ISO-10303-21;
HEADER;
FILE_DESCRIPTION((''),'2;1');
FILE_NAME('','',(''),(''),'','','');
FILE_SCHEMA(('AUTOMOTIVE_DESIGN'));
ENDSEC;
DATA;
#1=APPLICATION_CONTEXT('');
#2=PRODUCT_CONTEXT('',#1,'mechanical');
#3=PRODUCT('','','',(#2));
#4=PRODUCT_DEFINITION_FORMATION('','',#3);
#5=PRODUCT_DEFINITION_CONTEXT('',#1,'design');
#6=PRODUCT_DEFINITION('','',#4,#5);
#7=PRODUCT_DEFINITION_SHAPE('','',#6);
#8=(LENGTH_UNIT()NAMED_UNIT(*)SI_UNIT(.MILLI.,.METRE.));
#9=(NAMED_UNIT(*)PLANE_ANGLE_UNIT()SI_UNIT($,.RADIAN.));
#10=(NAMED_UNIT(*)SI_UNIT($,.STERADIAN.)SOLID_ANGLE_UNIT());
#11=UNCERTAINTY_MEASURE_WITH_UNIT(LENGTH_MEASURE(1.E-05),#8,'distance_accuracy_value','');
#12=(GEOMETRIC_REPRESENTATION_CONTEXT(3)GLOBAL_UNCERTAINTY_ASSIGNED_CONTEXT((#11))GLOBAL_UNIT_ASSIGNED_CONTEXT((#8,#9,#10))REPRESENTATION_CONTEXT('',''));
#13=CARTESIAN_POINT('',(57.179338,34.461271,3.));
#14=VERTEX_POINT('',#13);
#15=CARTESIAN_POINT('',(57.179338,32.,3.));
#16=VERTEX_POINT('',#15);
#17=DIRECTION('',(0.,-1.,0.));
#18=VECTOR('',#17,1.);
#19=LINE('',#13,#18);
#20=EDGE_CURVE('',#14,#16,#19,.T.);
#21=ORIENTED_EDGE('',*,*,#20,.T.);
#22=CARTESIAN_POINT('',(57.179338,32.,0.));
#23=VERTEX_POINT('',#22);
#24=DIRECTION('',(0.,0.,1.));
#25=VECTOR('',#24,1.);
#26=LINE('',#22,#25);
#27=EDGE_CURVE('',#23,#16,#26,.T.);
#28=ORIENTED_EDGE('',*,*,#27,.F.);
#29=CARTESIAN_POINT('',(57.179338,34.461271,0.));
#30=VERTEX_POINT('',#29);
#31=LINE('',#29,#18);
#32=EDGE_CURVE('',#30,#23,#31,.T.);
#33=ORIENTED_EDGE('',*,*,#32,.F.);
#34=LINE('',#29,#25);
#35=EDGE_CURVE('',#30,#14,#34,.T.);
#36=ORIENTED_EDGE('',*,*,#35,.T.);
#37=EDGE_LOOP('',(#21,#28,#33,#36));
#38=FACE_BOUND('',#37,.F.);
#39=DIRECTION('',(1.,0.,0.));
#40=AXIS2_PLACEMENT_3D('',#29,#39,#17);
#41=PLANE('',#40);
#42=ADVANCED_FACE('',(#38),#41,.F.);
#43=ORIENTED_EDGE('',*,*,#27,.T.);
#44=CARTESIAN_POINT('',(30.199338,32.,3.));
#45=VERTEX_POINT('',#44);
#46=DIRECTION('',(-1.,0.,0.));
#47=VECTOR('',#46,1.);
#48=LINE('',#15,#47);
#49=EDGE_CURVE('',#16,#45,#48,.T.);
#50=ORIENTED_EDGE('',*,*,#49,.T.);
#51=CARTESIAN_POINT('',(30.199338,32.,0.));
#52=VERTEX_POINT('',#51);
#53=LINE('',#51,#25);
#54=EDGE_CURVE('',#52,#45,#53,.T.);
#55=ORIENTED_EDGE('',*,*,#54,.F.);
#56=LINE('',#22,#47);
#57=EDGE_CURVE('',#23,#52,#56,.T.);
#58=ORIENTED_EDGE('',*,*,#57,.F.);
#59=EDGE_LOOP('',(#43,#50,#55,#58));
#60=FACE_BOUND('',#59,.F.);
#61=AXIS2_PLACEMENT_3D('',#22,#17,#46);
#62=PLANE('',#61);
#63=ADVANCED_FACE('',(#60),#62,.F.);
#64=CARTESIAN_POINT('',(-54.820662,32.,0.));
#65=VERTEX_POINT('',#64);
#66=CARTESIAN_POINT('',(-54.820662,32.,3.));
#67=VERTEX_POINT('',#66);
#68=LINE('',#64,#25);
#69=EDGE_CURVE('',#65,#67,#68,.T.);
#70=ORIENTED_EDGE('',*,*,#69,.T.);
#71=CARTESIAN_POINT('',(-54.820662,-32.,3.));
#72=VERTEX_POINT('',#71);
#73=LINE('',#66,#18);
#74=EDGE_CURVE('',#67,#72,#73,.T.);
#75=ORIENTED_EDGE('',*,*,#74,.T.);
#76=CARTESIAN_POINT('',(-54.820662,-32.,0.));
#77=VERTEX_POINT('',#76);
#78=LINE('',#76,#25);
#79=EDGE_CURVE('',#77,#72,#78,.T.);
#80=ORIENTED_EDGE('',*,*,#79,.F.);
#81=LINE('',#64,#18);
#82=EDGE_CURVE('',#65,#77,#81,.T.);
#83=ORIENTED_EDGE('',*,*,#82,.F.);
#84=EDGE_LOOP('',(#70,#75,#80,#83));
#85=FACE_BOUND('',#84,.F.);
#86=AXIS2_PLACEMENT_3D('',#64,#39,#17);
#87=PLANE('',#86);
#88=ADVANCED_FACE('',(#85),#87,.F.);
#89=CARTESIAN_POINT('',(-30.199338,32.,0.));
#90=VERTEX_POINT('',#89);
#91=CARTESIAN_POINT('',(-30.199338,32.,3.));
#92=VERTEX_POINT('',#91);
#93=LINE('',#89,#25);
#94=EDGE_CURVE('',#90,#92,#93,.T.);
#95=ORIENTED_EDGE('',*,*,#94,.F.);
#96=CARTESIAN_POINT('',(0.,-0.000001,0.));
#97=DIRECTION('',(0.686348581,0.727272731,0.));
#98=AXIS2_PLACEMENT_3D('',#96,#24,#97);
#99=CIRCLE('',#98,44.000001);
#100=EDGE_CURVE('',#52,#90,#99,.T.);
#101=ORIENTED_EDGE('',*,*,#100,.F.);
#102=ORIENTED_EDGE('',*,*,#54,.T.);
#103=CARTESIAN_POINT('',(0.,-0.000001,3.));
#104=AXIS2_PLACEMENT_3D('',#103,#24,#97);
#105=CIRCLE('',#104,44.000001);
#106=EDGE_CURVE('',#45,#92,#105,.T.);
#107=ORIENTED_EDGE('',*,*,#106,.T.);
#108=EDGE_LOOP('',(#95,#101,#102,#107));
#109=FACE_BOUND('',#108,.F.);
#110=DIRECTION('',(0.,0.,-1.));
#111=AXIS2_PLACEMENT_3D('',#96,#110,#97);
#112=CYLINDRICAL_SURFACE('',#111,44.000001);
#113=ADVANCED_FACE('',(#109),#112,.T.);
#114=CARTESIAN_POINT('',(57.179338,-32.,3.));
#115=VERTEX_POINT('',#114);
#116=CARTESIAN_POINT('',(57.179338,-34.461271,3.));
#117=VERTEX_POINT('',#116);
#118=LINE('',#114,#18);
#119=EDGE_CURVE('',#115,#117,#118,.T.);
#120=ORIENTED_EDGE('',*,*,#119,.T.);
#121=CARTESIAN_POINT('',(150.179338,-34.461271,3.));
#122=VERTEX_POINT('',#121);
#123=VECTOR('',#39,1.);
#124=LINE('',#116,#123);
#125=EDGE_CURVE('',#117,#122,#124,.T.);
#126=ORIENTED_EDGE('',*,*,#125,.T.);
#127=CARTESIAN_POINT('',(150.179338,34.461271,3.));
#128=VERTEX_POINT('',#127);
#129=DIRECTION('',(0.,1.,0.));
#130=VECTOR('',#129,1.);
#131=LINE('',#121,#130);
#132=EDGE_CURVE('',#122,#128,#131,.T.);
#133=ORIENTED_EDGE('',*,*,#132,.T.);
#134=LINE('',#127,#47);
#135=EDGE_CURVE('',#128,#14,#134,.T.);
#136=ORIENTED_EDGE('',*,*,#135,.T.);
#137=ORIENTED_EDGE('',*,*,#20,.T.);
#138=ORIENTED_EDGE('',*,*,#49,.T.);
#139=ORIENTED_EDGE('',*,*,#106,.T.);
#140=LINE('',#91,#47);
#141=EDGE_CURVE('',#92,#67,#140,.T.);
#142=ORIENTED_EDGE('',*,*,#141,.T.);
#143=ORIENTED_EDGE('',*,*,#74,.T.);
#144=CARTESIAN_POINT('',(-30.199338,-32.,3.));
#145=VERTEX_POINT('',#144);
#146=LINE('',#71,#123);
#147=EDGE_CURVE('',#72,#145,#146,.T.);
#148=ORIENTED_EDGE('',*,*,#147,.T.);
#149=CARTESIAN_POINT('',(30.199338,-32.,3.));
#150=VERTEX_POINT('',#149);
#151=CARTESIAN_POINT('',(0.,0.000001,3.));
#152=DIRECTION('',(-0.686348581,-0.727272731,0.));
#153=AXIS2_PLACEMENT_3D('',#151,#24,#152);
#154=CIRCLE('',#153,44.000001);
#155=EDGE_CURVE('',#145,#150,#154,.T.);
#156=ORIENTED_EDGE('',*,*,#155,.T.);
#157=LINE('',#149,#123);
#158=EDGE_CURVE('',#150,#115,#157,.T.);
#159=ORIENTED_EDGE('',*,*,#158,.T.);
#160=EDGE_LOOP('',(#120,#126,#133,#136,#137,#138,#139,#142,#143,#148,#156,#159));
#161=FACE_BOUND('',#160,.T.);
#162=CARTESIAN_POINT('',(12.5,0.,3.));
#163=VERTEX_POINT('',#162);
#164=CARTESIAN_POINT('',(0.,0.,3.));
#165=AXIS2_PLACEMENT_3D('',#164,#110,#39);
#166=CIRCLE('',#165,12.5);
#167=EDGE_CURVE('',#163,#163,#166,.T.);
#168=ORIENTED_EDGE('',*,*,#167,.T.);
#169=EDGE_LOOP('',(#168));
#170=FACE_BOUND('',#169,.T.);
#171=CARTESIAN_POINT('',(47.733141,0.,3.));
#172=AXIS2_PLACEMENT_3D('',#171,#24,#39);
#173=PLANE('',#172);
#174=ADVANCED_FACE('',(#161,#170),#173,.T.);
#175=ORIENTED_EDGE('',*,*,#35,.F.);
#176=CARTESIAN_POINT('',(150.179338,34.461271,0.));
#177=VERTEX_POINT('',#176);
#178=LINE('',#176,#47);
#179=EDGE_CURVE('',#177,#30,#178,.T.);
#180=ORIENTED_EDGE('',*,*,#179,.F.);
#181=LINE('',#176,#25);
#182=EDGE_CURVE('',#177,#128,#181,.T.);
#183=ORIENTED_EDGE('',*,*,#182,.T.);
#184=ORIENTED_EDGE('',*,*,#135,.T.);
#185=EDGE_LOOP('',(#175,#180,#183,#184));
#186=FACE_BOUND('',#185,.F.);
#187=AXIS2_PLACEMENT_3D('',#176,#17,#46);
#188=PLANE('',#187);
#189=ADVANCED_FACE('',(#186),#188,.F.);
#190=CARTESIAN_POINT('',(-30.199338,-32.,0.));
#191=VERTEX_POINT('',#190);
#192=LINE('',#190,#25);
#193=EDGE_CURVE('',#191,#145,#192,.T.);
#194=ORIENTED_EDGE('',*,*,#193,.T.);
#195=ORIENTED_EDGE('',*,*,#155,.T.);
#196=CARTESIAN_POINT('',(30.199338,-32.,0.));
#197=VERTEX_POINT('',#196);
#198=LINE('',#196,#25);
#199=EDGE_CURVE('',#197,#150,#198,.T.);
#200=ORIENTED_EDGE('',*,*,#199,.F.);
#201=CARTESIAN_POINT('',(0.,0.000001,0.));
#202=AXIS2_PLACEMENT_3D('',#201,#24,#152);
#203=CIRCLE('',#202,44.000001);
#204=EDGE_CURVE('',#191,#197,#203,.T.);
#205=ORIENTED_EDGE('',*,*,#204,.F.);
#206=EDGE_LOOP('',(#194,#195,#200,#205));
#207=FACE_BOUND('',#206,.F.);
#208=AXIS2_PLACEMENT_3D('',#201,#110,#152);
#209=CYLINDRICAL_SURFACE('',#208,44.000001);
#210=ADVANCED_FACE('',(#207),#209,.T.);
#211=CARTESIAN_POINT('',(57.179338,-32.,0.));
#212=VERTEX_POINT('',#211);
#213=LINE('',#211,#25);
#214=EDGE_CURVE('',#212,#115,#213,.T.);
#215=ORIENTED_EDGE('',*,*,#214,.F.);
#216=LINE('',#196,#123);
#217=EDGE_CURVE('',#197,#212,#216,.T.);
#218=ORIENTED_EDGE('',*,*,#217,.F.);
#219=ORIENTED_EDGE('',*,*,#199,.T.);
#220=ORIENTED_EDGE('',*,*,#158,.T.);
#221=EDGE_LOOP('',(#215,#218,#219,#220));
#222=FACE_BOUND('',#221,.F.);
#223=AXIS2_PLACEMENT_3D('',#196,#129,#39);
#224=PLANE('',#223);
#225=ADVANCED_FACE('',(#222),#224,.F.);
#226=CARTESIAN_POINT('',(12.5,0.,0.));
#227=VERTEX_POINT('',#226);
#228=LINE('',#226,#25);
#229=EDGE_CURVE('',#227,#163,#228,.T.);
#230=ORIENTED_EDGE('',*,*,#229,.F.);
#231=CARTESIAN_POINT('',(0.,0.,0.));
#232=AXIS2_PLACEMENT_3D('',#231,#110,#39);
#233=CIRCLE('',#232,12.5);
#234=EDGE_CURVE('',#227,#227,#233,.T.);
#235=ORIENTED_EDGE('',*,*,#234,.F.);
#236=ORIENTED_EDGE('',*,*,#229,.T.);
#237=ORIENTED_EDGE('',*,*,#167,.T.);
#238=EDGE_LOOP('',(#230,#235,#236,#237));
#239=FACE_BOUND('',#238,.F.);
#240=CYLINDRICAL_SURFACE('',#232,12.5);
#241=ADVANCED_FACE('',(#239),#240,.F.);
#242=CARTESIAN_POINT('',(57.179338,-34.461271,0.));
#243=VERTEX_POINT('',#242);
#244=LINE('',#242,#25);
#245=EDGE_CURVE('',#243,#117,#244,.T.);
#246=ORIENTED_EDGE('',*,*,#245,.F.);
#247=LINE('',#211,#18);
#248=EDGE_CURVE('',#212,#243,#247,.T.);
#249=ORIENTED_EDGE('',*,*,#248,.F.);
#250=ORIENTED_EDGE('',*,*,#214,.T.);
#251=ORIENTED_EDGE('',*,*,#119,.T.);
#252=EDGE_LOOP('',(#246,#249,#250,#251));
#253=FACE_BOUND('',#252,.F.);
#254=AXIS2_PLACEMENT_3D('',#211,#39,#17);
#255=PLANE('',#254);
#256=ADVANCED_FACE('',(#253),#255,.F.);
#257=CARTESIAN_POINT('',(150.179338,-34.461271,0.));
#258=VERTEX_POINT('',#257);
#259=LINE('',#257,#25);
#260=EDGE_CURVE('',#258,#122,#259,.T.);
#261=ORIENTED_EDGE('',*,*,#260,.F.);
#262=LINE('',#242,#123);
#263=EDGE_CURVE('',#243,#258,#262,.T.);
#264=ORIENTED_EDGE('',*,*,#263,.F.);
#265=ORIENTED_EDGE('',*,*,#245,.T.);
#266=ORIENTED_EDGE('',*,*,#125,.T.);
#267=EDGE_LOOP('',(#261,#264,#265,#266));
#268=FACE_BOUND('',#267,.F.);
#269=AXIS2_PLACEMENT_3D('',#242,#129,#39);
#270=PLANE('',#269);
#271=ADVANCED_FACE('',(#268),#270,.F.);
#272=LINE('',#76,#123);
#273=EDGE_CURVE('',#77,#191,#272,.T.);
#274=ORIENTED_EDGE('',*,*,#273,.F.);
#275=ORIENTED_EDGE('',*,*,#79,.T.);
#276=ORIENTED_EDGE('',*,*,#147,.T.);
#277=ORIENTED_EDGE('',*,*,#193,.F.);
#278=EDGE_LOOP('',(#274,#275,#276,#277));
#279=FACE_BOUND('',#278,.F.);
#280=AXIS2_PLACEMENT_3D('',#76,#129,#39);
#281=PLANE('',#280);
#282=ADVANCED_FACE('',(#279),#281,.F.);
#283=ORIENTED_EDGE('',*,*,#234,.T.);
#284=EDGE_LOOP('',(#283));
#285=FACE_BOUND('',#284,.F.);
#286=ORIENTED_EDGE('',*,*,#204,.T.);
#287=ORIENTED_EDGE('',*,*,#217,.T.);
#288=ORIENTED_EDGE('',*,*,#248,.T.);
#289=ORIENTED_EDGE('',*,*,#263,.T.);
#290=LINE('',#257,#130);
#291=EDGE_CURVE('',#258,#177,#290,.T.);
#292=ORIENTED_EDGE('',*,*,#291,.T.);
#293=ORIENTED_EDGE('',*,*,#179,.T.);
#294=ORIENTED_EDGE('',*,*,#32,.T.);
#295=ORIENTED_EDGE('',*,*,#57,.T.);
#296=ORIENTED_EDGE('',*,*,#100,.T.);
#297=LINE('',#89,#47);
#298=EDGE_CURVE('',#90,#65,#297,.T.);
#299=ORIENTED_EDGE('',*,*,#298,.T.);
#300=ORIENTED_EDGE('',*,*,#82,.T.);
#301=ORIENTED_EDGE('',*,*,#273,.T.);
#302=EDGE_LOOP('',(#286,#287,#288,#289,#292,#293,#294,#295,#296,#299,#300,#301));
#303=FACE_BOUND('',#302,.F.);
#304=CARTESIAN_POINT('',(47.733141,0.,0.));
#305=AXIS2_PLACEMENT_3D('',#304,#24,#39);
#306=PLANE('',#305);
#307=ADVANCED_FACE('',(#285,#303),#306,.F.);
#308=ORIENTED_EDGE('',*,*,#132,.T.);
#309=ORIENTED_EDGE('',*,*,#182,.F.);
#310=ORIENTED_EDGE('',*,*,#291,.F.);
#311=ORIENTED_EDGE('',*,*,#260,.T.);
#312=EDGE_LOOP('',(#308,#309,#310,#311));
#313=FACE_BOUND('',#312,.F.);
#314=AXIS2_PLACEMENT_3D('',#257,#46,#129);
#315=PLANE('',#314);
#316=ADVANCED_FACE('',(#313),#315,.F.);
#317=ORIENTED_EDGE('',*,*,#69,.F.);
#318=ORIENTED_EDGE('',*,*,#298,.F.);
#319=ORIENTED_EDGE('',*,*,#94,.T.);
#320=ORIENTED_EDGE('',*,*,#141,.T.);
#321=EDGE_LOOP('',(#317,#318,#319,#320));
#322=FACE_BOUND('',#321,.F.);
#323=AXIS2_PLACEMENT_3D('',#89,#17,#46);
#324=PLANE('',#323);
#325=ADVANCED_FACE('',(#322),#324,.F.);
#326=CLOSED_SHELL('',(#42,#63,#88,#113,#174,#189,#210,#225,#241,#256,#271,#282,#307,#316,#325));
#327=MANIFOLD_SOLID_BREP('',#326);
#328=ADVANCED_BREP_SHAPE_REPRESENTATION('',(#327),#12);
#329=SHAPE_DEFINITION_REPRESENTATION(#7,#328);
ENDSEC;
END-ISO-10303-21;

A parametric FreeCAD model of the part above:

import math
import FreeCAD as App
import Part
import Sketcher
Q = App.Units.Quantity

doc = App.newDocument("Part")
body = doc.addObject("PartDesign::Body", "Body")

# Sketch on XY plane
sketch1 = doc.addObject("Sketcher::SketchObject", "Sketch")
body.addObject(sketch1)
sketch1.AttachmentSupport = (doc.XY_Plane, [""])
sketch1.MapMode = "FlatFace"
sketch1.addGeometry([
    Part.ArcOfCircle(Part.Circle(App.Vector(0, -0.000001, 0), App.Vector(0, 0, 1), 44.000001), math.radians(46.658242), math.radians(133.341758)),  # 0
    Part.LineSegment(App.Vector(-30.199338, 32, 0), App.Vector(-54.820662, 32, 0)),  # 1
    Part.LineSegment(App.Vector(-54.820662, 32, 0), App.Vector(-54.820662, -32, 0)),  # 2
    Part.LineSegment(App.Vector(-54.820662, -32, 0), App.Vector(-30.199338, -32, 0)),  # 3
    Part.ArcOfCircle(Part.Circle(App.Vector(0, 0.000001, 0), App.Vector(0, 0, 1), 44.000001), math.radians(-133.341758), math.radians(-46.658242)),  # 4
    Part.LineSegment(App.Vector(30.199338, -32, 0), App.Vector(57.179338, -32, 0)),  # 5
    Part.LineSegment(App.Vector(57.179338, -32, 0), App.Vector(57.179338, -34.461271, 0)),  # 6
    Part.LineSegment(App.Vector(57.179338, -34.461271, 0), App.Vector(150.179338, -34.461271, 0)),  # 7
    Part.LineSegment(App.Vector(150.179338, -34.461271, 0), App.Vector(150.179338, 34.461271, 0)),  # 8
    Part.LineSegment(App.Vector(150.179338, 34.461271, 0), App.Vector(57.179338, 34.461271, 0)),  # 9
    Part.LineSegment(App.Vector(57.179338, 34.461271, 0), App.Vector(57.179338, 32, 0)),  # 10
    Part.LineSegment(App.Vector(57.179338, 32, 0), App.Vector(30.199338, 32, 0)),  # 11
    Part.Circle(App.Vector(0, 0, 0), App.Vector(0, 0, 1), 12.5),  # 12
], False)
sketch1.addConstraint([
    Sketcher.Constraint("Coincident", 0, 2, 1, 1),
    Sketcher.Constraint("Coincident", 1, 2, 2, 1),
    Sketcher.Constraint("Coincident", 2, 2, 3, 1),
    Sketcher.Constraint("Coincident", 3, 2, 4, 1),
    Sketcher.Constraint("Coincident", 4, 2, 5, 1),
    Sketcher.Constraint("Coincident", 5, 2, 6, 1),
    Sketcher.Constraint("Coincident", 6, 2, 7, 1),
    Sketcher.Constraint("Coincident", 7, 2, 8, 1),
    Sketcher.Constraint("Coincident", 8, 2, 9, 1),
    Sketcher.Constraint("Coincident", 9, 2, 10, 1),
    Sketcher.Constraint("Coincident", 10, 2, 11, 1),
    Sketcher.Constraint("Coincident", 11, 2, 0, 1),
    Sketcher.Constraint("Horizontal", 1),
    Sketcher.Constraint("Vertical", 2),
    Sketcher.Constraint("Horizontal", 3),
    Sketcher.Constraint("Horizontal", 5),
    Sketcher.Constraint("Vertical", 6),
    Sketcher.Constraint("Horizontal", 7),
    Sketcher.Constraint("Vertical", 8),
    Sketcher.Constraint("Horizontal", 9),
    Sketcher.Constraint("Vertical", 10),
    Sketcher.Constraint("Horizontal", 11),
    Sketcher.Constraint("Coincident", 0, 3, -1, 1),
    Sketcher.Constraint("Coincident", 4, 3, -1, 1),
    Sketcher.Constraint("Coincident", 12, 3, -1, 1),
    Sketcher.Constraint("Equal", 0, 4),
    Sketcher.Constraint("Symmetric", 6, 2, 9, 2, -1),
    Sketcher.Constraint("Horizontal", 3, 2, 4, 2),
    Sketcher.Constraint("Horizontal", 1, 2, 10, 2),
    Sketcher.Constraint("Vertical", 0, 2, 3, 2),
    Sketcher.Constraint("Diameter", 12, Q("25 mm")),
    Sketcher.Constraint("Radius", 0, Q("44.000001 mm")),
    Sketcher.Constraint("DistanceX", 7, 1, 7, 2, Q("93 mm")),
    Sketcher.Constraint("DistanceY", 2, 2, 2, 1, Q("64 mm")),
    Sketcher.Constraint("DistanceX", 5, 1, 5, 2, Q("26.98 mm")),
    Sketcher.Constraint("DistanceX", 2, 2, 4, 2, Q("85.02 mm")),
    Sketcher.Constraint("DistanceY", 6, 2, 6, 1, Q("2.461271 mm")),
])
pad1 = doc.addObject("PartDesign::Pad", "Pad")
body.addObject(pad1)
pad1.Profile = sketch1
pad1.Length = 3

doc.recompute()
